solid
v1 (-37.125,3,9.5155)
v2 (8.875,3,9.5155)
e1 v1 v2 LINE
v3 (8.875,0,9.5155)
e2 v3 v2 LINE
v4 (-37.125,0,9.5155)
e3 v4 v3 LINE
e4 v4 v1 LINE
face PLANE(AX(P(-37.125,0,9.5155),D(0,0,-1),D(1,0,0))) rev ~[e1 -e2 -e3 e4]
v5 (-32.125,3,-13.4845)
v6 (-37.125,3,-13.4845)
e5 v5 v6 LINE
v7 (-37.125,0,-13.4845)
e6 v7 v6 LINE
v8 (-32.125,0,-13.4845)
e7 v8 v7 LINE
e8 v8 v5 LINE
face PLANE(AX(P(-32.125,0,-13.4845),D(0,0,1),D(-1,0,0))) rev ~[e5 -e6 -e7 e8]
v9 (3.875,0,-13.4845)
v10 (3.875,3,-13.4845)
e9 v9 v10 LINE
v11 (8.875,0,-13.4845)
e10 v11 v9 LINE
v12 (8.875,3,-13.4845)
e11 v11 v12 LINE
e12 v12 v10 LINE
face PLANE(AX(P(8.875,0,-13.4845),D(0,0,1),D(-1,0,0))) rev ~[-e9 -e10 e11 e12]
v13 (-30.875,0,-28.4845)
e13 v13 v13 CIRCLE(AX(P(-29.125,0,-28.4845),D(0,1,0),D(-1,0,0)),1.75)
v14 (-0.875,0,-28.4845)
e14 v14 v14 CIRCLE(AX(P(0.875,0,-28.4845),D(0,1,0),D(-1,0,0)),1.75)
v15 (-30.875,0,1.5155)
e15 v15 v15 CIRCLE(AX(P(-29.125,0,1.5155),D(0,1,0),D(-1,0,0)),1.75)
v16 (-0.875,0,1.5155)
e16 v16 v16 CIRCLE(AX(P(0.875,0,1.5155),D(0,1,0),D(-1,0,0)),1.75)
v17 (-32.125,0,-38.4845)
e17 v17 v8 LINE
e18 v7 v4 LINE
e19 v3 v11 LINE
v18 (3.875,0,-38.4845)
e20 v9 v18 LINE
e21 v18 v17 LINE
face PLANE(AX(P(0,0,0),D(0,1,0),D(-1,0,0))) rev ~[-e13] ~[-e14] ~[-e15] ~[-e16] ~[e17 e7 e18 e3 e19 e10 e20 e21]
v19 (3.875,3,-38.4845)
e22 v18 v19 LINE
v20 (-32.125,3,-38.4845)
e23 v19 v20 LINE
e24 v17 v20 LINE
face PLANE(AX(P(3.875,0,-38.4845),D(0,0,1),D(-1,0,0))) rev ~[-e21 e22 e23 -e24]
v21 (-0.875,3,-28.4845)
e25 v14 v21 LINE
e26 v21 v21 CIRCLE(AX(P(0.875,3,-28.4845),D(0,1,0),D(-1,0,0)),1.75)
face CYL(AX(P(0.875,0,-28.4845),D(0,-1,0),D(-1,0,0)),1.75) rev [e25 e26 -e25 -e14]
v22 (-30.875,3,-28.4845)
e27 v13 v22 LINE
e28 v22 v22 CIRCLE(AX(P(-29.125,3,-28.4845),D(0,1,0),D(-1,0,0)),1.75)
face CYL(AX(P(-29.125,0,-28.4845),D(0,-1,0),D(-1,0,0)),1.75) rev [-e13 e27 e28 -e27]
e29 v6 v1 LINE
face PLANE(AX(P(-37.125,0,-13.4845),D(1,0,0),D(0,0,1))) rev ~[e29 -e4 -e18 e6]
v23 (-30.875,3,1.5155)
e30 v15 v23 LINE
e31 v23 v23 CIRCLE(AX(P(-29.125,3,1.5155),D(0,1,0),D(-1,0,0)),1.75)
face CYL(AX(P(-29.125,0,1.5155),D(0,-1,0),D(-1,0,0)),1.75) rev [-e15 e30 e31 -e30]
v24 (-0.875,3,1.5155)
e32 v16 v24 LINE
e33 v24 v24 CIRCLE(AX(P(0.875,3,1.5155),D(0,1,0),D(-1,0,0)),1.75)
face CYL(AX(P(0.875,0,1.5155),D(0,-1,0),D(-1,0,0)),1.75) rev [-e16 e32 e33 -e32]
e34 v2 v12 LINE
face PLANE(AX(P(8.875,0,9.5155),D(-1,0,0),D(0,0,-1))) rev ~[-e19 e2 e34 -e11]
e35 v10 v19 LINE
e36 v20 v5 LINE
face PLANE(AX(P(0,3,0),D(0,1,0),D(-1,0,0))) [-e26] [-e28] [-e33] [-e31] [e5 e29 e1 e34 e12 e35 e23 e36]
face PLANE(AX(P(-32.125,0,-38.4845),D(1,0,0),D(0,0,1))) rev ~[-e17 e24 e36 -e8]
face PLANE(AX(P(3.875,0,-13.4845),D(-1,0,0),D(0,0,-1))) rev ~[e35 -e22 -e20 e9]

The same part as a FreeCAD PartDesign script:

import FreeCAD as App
import Part
import Sketcher

V = App.Vector


def add_polygon(sketch, points):
    """Adds a closed chain of lines whose ends are joined by coincident constraints."""
    first, n = sketch.GeometryCount, len(points)
    for a, b in zip(points, points[1:] + points[:1]):
        sketch.addGeometry(Part.LineSegment(App.Vector(*a, 0), App.Vector(*b, 0)), False)
    for i in range(n):
        sketch.addConstraint(Sketcher.Constraint("Coincident", first + i, 2, first + (i + 1) % n, 1))

doc = App.newDocument("Part")
body = doc.addObject("PartDesign::Body", "Body")

# Sketch on XZ plane
sketch1 = doc.addObject("Sketcher::SketchObject", "Sketch")
body.addObject(sketch1)
sketch1.AttachmentSupport = (doc.XZ_Plane, [""])
sketch1.MapMode = "FlatFace"
add_polygon(sketch1, [(-37.125, -13.4845), (-37.125, 9.5155), (8.875, 9.5155), (8.875, -13.4845), (3.875, -13.4845), (3.875, -38.4845), (-32.125, -38.4845), (-32.125, -13.4845)])  # lines 0-7
sketch1.addGeometry(Part.Circle(V(0.875, -28.4845, 0), V(0, 0, 1), 1.75), False)  # 8
sketch1.addGeometry(Part.Circle(V(-29.125, -28.4845, 0), V(0, 0, 1), 1.75), False)  # 9
sketch1.addGeometry(Part.Circle(V(0.875, 1.5155, 0), V(0, 0, 1), 1.75), False)  # 10
sketch1.addGeometry(Part.Circle(V(-29.125, 1.5155, 0), V(0, 0, 1), 1.75), False)  # 11
sketch1.addConstraint([
    Sketcher.Constraint("Vertical", 0),
    Sketcher.Constraint("Horizontal", 1),
    Sketcher.Constraint("Vertical", 2),
    Sketcher.Constraint("Horizontal", 3),
    Sketcher.Constraint("Vertical", 4),
    Sketcher.Constraint("Horizontal", 5),
    Sketcher.Constraint("Vertical", 6),
    Sketcher.Constraint("Horizontal", 7),
    Sketcher.Constraint("Equal", 8, 9),
    Sketcher.Constraint("Equal", 9, 10),
    Sketcher.Constraint("Equal", 10, 11),
    Sketcher.Constraint("Horizontal", 8, 3, 9, 3),
    Sketcher.Constraint("Horizontal", 10, 3, 11, 3),
    Sketcher.Constraint("Horizontal", 3, 2, 6, 2),
    Sketcher.Constraint("Vertical", 8, 3, 10, 3),
    Sketcher.Constraint("Vertical", 9, 3, 11, 3),
    Sketcher.Constraint("Equal", 3, 7),
    Sketcher.Constraint("DistanceX", 1, 1, 1, 2, 46.0),
    Sketcher.Constraint("DistanceX", 3, 2, 3, 1, 5.0),
    Sketcher.Constraint("DistanceY", 0, 1, 0, 2, 23.0),
    Sketcher.Constraint("DistanceY", 4, 2, 4, 1, 25.0),
    Sketcher.Constraint("Diameter", 8, 3.5),
    Sketcher.Constraint("DistanceX", 9, 3, 8, 3, 30.0),
    Sketcher.Constraint("DistanceY", 8, 3, 10, 3, 30.0),
    Sketcher.Constraint("DistanceX", 0, 2, 11, 3, 8.0),
    Sketcher.Constraint("DistanceY", 11, 3, 0, 2, 8.0),
    Sketcher.Constraint("DistanceX", -1, 1, 8, 3, 0.875),
    Sketcher.Constraint("DistanceY", 8, 3, -1, 1, 28.4845),
])
pad1 = doc.addObject("PartDesign::Pad", "Pad")
body.addObject(pad1)
pad1.Profile = sketch1
pad1.Length = 3
pad1.Reversed = True

doc.recompute()
